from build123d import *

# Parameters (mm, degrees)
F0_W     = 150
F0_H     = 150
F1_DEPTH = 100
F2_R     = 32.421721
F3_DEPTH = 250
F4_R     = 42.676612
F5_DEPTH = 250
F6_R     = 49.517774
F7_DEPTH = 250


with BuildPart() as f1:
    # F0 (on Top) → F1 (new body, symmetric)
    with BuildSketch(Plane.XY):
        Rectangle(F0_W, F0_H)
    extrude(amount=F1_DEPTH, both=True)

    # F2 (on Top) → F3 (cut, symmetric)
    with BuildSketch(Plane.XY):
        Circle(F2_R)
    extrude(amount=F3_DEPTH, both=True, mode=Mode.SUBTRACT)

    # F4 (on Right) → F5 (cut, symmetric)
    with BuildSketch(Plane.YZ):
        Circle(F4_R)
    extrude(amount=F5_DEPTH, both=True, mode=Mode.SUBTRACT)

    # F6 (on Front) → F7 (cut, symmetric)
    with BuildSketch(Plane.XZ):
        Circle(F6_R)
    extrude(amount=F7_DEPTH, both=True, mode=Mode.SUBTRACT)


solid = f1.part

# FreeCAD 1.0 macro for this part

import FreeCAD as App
import Part
import Sketcher

V = App.Vector


def add_polygon(sketch, points):
    """Adds a closed chain of lines whose ends are joined by coincident constraints."""
    first, n = sketch.GeometryCount, len(points)
    for a, b in zip(points, points[1:] + points[:1]):
        sketch.addGeometry(Part.LineSegment(App.Vector(*a, 0), App.Vector(*b, 0)), False)
    for i in range(n):
        sketch.addConstraint(Sketcher.Constraint("Coincident", first + i, 2, first + (i + 1) % n, 1))

doc = App.newDocument("Part")
body = doc.addObject("PartDesign::Body", "Body")

# Sketch on XY plane
sketch1 = body.newObject("Sketcher::SketchObject", "Sketch")
sketch1.AttachmentSupport = (doc.getObject("XY_Plane"), [""])
sketch1.MapMode = "FlatFace"
add_polygon(sketch1, [(-75, 75), (-75, -75), (75, -75), (75, 75)])  # lines 0-3
sketch1.addConstraint([
    Sketcher.Constraint("Vertical", 0),
    Sketcher.Constraint("Horizontal", 1),
    Sketcher.Constraint("Vertical", 2),
    Sketcher.Constraint("Horizontal", 3),
    Sketcher.Constraint("Symmetric", 0, 2, 2, 2, -1, 1),
    Sketcher.Constraint("Equal", 3, 0),
    Sketcher.Constraint("DistanceX", 1, 1, 1, 2, 150.0),
])
pad1 = body.newObject("PartDesign::Pad", "Pad")
pad1.Profile = sketch1
pad1.Length = 200
pad1.Midplane = True

# Sketch on XY plane
sketch2 = body.newObject("Sketcher::SketchObject", "Sketch001")
sketch2.AttachmentSupport = (doc.getObject("XY_Plane"), [""])
sketch2.MapMode = "FlatFace"
sketch2.addGeometry(Part.Circle(V(0, 0, 0), V(0, 0, 1), 32), False)
sketch2.addConstraint([
    Sketcher.Constraint("Coincident", 0, 3, -1, 1),
    Sketcher.Constraint("Diameter", 0, 64.843442),
])
pocket1 = body.newObject("PartDesign::Pocket", "Pocket")
pocket1.Profile = sketch2
pocket1.Length = 500
pocket1.Midplane = True

# Sketch on YZ plane
sketch3 = body.newObject("Sketcher::SketchObject", "Sketch002")
sketch3.AttachmentSupport = (doc.getObject("YZ_Plane"), [""])
sketch3.MapMode = "FlatFace"
sketch3.addGeometry(Part.Circle(V(0, 0, 0), V(0, 0, 1), 43), False)
sketch3.addConstraint([
    Sketcher.Constraint("Coincident", 0, 3, -1, 1),
    Sketcher.Constraint("Diameter", 0, 85.353224),
])
pocket2 = body.newObject("PartDesign::Pocket", "Pocket001")
pocket2.Profile = sketch3
pocket2.Length = 500
pocket2.Midplane = True

# Sketch on XZ plane
sketch4 = body.newObject("Sketcher::SketchObject", "Sketch003")
sketch4.AttachmentSupport = (doc.getObject("XZ_Plane"), [""])
sketch4.MapMode = "FlatFace"
sketch4.addGeometry(Part.Circle(V(0, 0, 0), V(0, 0, 1), 50), False)
sketch4.addConstraint([
    Sketcher.Constraint("Coincident", 0, 3, -1, 1),
    Sketcher.Constraint("Diameter", 0, 99.035548),
])
pocket3 = body.newObject("PartDesign::Pocket", "Pocket002")
pocket3.Profile = sketch4
pocket3.Length = 500
pocket3.Midplane = True

doc.recompute()
